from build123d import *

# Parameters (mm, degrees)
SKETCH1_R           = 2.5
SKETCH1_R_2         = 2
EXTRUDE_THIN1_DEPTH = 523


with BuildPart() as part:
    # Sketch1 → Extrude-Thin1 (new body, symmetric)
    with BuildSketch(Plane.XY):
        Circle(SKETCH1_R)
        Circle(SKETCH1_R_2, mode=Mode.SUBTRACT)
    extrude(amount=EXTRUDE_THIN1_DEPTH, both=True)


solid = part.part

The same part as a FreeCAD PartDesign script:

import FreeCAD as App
import Part
import Sketcher
from FreeCAD import Vector

doc = App.newDocument("Part")
params = doc.addObject("Spreadsheet::Sheet", "Params")
for row, (alias, value) in enumerate([
    ("sketch1_diameter", "5 mm"),
    ("sketch1_diameter2", "4 mm"),
    ("pad1_length", "1046 mm"),
], start=1):
    params.set(f"A{row}", alias)
    params.set(f"B{row}", "=" + value)
    params.setAlias(f"B{row}", alias)

body = doc.addObject("PartDesign::Body", "Body")

sketch1 = body.newObject("Sketcher::SketchObject", "Sketch")
sketch1.AttachmentSupport = (doc.getObject("XY_Plane"), [""])
sketch1.MapMode = "FlatFace"
sketch1.addGeometry([
    Part.Circle(Vector(0, 0, 0), Vector(0, 0, 1), 2.5),
    Part.Circle(Vector(0, 0, 0), Vector(0, 0, 1), 2),
], False)
sketch1.addConstraint([
    Sketcher.Constraint("Coincident", 0, 3, -1, 1),
    Sketcher.Constraint("Coincident", 1, 3, -1, 1),
    Sketcher.Constraint("Diameter", 0, 5.0),
    Sketcher.Constraint("Diameter", 1, 4.0),
])
sketch1.setExpression("Constraints[2]", "Params.sketch1_diameter")
sketch1.setExpression("Constraints[3]", "Params.sketch1_diameter2")
pad1 = body.newObject("PartDesign::Pad", "Pad")
pad1.Profile = sketch1
pad1.setExpression("Length", "Params.pad1_length")
pad1.Midplane = True

doc.recompute()
